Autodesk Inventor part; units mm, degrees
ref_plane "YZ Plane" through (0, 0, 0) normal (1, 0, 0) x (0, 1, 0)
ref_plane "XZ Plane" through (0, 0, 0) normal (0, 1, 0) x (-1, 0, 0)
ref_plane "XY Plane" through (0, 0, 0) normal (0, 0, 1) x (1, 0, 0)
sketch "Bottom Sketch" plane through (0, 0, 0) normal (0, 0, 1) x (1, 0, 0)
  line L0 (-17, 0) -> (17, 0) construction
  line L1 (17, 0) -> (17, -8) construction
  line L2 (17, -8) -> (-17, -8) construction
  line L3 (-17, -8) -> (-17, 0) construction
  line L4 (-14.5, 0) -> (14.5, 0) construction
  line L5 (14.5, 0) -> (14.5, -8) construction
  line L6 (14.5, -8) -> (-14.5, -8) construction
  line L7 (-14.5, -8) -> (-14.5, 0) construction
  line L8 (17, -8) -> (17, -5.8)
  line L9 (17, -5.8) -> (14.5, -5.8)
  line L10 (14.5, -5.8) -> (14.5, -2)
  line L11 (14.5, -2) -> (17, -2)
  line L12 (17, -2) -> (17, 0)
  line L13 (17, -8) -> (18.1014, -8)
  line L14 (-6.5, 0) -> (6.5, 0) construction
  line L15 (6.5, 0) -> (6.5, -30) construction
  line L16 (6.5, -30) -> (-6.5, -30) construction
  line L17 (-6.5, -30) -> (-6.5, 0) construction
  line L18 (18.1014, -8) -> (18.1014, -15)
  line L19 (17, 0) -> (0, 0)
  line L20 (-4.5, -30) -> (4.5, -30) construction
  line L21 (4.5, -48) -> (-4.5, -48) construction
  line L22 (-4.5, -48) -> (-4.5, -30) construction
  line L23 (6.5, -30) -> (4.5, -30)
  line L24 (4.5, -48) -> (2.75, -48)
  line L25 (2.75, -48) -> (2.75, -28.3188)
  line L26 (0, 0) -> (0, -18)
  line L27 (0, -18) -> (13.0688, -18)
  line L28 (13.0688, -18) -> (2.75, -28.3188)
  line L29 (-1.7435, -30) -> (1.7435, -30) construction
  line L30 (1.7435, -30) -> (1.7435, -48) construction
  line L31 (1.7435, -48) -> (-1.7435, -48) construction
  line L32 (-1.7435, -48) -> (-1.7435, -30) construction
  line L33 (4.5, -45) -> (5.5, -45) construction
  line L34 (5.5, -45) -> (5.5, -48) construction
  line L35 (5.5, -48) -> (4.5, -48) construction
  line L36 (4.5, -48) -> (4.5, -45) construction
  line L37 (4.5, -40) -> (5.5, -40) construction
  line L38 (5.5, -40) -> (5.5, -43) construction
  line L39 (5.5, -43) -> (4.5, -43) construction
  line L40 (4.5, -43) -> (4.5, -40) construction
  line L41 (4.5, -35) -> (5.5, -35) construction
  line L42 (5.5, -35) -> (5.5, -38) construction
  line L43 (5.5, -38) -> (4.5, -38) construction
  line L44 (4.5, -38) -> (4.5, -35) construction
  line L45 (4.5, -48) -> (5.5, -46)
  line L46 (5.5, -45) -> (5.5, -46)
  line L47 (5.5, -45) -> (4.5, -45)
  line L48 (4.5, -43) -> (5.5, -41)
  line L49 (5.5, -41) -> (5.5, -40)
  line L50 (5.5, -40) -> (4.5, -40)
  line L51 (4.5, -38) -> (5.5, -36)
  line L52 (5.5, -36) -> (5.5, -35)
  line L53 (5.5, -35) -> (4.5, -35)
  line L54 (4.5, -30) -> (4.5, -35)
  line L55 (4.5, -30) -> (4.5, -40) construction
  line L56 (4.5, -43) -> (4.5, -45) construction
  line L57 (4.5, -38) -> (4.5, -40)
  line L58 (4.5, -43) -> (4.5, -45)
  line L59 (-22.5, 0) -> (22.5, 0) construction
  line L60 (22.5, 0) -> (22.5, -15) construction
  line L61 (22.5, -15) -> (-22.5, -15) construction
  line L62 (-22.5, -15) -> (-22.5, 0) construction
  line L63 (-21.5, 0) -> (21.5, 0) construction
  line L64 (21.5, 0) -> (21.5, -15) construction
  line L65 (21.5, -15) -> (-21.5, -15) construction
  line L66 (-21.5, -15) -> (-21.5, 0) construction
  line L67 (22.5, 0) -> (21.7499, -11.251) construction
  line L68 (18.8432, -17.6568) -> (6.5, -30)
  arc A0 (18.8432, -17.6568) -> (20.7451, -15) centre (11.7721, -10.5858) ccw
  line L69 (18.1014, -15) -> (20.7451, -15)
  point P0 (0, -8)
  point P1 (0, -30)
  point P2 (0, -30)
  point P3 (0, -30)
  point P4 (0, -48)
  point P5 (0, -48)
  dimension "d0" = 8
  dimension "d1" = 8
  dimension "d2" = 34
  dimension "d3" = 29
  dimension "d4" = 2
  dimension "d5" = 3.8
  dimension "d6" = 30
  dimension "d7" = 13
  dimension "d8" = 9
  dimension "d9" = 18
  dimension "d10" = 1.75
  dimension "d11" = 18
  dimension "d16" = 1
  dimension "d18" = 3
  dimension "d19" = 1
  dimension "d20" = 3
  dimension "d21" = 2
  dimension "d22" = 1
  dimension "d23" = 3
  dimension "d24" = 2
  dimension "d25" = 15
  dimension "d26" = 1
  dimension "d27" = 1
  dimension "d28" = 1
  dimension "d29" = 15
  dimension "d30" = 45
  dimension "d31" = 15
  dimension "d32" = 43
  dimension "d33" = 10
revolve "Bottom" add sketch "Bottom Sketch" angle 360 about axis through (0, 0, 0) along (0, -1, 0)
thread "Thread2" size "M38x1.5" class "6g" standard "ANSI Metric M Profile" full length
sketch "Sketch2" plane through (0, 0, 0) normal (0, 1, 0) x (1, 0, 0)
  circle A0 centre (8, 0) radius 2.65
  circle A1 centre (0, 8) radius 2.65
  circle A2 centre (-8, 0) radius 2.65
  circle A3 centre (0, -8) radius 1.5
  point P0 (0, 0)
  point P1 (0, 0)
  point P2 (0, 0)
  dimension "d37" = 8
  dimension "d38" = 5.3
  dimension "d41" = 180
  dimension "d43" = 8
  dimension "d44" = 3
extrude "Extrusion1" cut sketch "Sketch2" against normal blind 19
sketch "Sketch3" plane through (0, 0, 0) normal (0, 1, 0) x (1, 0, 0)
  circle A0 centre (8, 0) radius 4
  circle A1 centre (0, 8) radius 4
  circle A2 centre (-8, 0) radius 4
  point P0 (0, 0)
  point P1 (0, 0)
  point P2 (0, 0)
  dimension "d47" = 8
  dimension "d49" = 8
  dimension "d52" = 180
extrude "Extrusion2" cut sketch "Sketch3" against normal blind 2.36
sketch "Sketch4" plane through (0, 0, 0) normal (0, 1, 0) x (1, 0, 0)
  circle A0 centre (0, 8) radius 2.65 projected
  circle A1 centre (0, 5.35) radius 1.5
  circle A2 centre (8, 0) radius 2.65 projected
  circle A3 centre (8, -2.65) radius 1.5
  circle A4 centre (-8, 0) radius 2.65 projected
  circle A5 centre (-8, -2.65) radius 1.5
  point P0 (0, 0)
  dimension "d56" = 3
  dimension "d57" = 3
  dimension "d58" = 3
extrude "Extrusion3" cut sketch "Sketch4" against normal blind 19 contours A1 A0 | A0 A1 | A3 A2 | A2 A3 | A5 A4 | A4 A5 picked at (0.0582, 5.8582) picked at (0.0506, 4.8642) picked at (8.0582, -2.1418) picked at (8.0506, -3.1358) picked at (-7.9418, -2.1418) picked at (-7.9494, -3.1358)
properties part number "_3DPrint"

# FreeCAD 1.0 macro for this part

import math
import FreeCAD as App
import Part
import Sketcher

V = App.Vector
Q = App.Units.Quantity

doc = App.newDocument("Part")
params = doc.addObject("Spreadsheet::Sheet", "Params")
for row, (alias, value) in enumerate([
    ("sketch1_radius", "10 mm"),
    ("sketch1_width", "1 mm"),
    ("sketch1_width2", "2 mm"),
    ("sketch1_height", "18 mm"),
    ("sketch1_height2", "3.8 mm"),
    ("revolution_angle", "360 deg"),
    ("sketch2_diameter", "3 mm"),
    ("sketch2_diameter2", "5.3 mm"),
    ("pocket1_length", "19 mm"),
    ("sketch3_diameter", "8 mm"),
    ("pocket2_length", "2.36 mm"),
    ("sketch4_diameter", "3 mm"),
    ("pocket3_length", "19 mm"),
], start=1):
    params.set(f"A{row}", alias)
    params.set(f"B{row}", "=" + value)
    params.setAlias(f"B{row}", alias)

body = doc.addObject("PartDesign::Body", "Body")

sketch1 = doc.addObject("Sketcher::SketchObject", "Sketch")
body.addObject(sketch1)
sketch1.AttachmentSupport = (doc.XY_Plane, [""])
sketch1.MapMode = "FlatFace"
sketch1.addGeometry([
    Part.LineSegment(V(18.1, -8, 0), V(17, -8, 0)),
    Part.LineSegment(V(17, -8, 0), V(17, -5.8, 0)),
    Part.LineSegment(V(17, -5.8, 0), V(14.5, -5.8, 0)),
    Part.LineSegment(V(14.5, -5.8, 0), V(14.5, -2, 0)),
    Part.LineSegment(V(14.5, -2, 0), V(17, -2, 0)),
    Part.LineSegment(V(17, -2, 0), V(17, 0, 0)),
    Part.LineSegment(V(17, 0, 0), V(0, 0, 0)),
    Part.LineSegment(V(0, 0, 0), V(0, -18, 0)),
    Part.LineSegment(V(0, -18, 0), V(13.1, -18, 0)),
    Part.LineSegment(V(13.1, -18, 0), V(2.8, -28.3, 0)),
    Part.LineSegment(V(2.8, -28.3, 0), V(2.8, -48, 0)),
    Part.LineSegment(V(2.8, -48, 0), V(4.5, -48, 0)),
    Part.LineSegment(V(4.5, -48, 0), V(5.5, -46, 0)),
    Part.LineSegment(V(5.5, -46, 0), V(5.5, -45, 0)),
    Part.LineSegment(V(5.5, -45, 0), V(4.5, -45, 0)),
    Part.LineSegment(V(4.5, -45, 0), V(4.5, -43, 0)),
    Part.LineSegment(V(4.5, -43, 0), V(5.5, -41, 0)),
    Part.LineSegment(V(5.5, -41, 0), V(5.5, -40, 0)),
    Part.LineSegment(V(5.5, -40, 0), V(4.5, -40, 0)),
    Part.LineSegment(V(4.5, -40, 0), V(4.5, -38, 0)),
    Part.LineSegment(V(4.5, -38, 0), V(5.5, -36, 0)),
    Part.LineSegment(V(5.5, -36, 0), V(5.5, -35, 0)),
    Part.LineSegment(V(5.5, -35, 0), V(4.5, -35, 0)),
    Part.LineSegment(V(4.5, -35, 0), V(4.5, -30, 0)),
    Part.LineSegment(V(4.5, -30, 0), V(6.5, -30, 0)),
    Part.LineSegment(V(6.5, -30, 0), V(18.8, -17.7, 0)),
    Part.ArcOfCircle(Part.Circle(V(11.8, -10.6, 0), V(0, 0, 1), 10), math.radians(-45), math.radians(-26.19)),
    Part.LineSegment(V(20.7, -15, 0), V(18.1, -15, 0)),
    Part.LineSegment(V(18.1, -15, 0), V(18.1, -8, 0)),
], False)
sketch1.addConstraint([
    Sketcher.Constraint("Coincident", 0, 2, 1, 1),
    Sketcher.Constraint("Coincident", 1, 2, 2, 1),
    Sketcher.Constraint("Coincident", 2, 2, 3, 1),
    Sketcher.Constraint("Coincident", 3, 2, 4, 1),
    Sketcher.Constraint("Coincident", 4, 2, 5, 1),
    Sketcher.Constraint("Coincident", 5, 2, 6, 1),
    Sketcher.Constraint("Coincident", 6, 2, 7, 1),
    Sketcher.Constraint("Coincident", 7, 2, 8, 1),
    Sketcher.Constraint("Coincident", 8, 2, 9, 1),
    Sketcher.Constraint("Coincident", 9, 2, 10, 1),
    Sketcher.Constraint("Coincident", 10, 2, 11, 1),
    Sketcher.Constraint("Coincident", 11, 2, 12, 1),
    Sketcher.Constraint("Coincident", 12, 2, 13, 1),
    Sketcher.Constraint("Coincident", 13, 2, 14, 1),
    Sketcher.Constraint("Coincident", 14, 2, 15, 1),
    Sketcher.Constraint("Coincident", 15, 2, 16, 1),
    Sketcher.Constraint("Coincident", 16, 2, 17, 1),
    Sketcher.Constraint("Coincident", 17, 2, 18, 1),
    Sketcher.Constraint("Coincident", 18, 2, 19, 1),
    Sketcher.Constraint("Coincident", 19, 2, 20, 1),
    Sketcher.Constraint("Coincident", 20, 2, 21, 1),
    Sketcher.Constraint("Coincident", 21, 2, 22, 1),
    Sketcher.Constraint("Coincident", 22, 2, 23, 1),
    Sketcher.Constraint("Coincident", 23, 2, 24, 1),
    Sketcher.Constraint("Coincident", 24, 2, 25, 1),
    Sketcher.Constraint("Tangent", 25, 2, 26, 1),
    Sketcher.Constraint("Coincident", 26, 2, 27, 1),
    Sketcher.Constraint("Coincident", 27, 2, 28, 1),
    Sketcher.Constraint("Coincident", 28, 2, 0, 1),
    Sketcher.Constraint("Horizontal", 0),
    Sketcher.Constraint("Vertical", 1),
    Sketcher.Constraint("Horizontal", 2),
    Sketcher.Constraint("Vertical", 3),
    Sketcher.Constraint("Horizontal", 4),
    Sketcher.Constraint("Vertical", 5),
    Sketcher.Constraint("Horizontal", 6),
    Sketcher.Constraint("Vertical", 7),
    Sketcher.Constraint("Horizontal", 8),
    Sketcher.Constraint("Vertical", 10),
    Sketcher.Constraint("Horizontal", 11),
    Sketcher.Constraint("Vertical", 13),
    Sketcher.Constraint("Horizontal", 14),
    Sketcher.Constraint("Vertical", 15),
    Sketcher.Constraint("Vertical", 17),
    Sketcher.Constraint("Horizontal", 18),
    Sketcher.Constraint("Vertical", 19),
    Sketcher.Constraint("Vertical", 21),
    Sketcher.Constraint("Horizontal", 22),
    Sketcher.Constraint("Vertical", 23),
    Sketcher.Constraint("Horizontal", 24),
    Sketcher.Constraint("Horizontal", 27),
    Sketcher.Constraint("Vertical", 28),
    Sketcher.Constraint("Coincident", 6, 2, -1, 1),
    Sketcher.Constraint("Parallel", 12, 16),
    Sketcher.Constraint("Parallel", 16, 20),
    Sketcher.Constraint("Parallel", 9, 25),
    Sketcher.Constraint("Vertical", 1, 2, 4, 2),
    Sketcher.Constraint("Vertical", 11, 2, 14, 2),
    Sketcher.Constraint("Vertical", 13, 2, 16, 2),
    Sketcher.Constraint("Vertical", 15, 2, 18, 2),
    Sketcher.Constraint("Vertical", 17, 2, 20, 2),
    Sketcher.Constraint("Vertical", 19, 2, 22, 2),
    Sketcher.Constraint("Equal", 24, 5),
    Sketcher.Constraint("Equal", 22, 13),
    Sketcher.Constraint("Equal", 5, 15),
    Sketcher.Constraint("Equal", 13, 17),
    Sketcher.Constraint("Equal", 15, 19),
    Sketcher.Constraint("Equal", 17, 21),
    Sketcher.Constraint("Radius", 26, Q("10 mm")),
    Sketcher.Constraint("DistanceX", 14, 2, 14, 1, Q("1 mm")),
    Sketcher.Constraint("DistanceX", 24, 1, 24, 2, Q("2 mm")),
    Sketcher.Constraint("DistanceY", 7, 2, 7, 1, Q("18 mm")),
    Sketcher.Constraint("Angle", 25, Q("45 deg")),
    Sketcher.Constraint("DistanceY", 3, 1, 3, 2, Q("3.8 mm")),
    Sketcher.Constraint("DistanceY", 0, 2, -1, 1, Q("8 mm")),
    Sketcher.Constraint("DistanceY", 13, 2, -1, 1, Q("45 mm")),
    Sketcher.Constraint("DistanceY", 23, 2, -1, 1, Q("30 mm")),
    Sketcher.Constraint("DistanceY", 26, 2, -1, 1, Q("15 mm")),
    Sketcher.Constraint("DistanceY", 10, 2, 7, 2, Q("30 mm")),
    Sketcher.Constraint("DistanceX", 11, 1, 11, 2, Q("1.75 mm")),
    Sketcher.Constraint("DistanceX", 6, 2, 6, 1, Q("17 mm")),
    Sketcher.Constraint("DistanceX", 2, 2, 2, 1, Q("2.5 mm")),
    Sketcher.Constraint("DistanceX", -1, 1, 11, 2, Q("4.5 mm")),
    Sketcher.Constraint("Distance", 9, Q("14.593 mm")),
    Sketcher.Constraint("Distance", 25, Q("17.456 mm")),
    Sketcher.Constraint("DistanceX", 0, 2, 0, 1, Q("1.1014 mm")),
])
sketch1.setExpression("Constraints[68]", "Params.sketch1_radius")
sketch1.setExpression("Constraints[69]", "Params.sketch1_width")
sketch1.setExpression("Constraints[70]", "Params.sketch1_width2")
sketch1.setExpression("Constraints[71]", "Params.sketch1_height")
sketch1.setExpression("Constraints[73]", "Params.sketch1_height2")
revolution = doc.addObject("PartDesign::Revolution", "Revolution")
body.addObject(revolution)
revolution.Profile = sketch1
revolution.ReferenceAxis = (sketch1, ["V_Axis"])
revolution.setExpression("Angle", "Params.revolution_angle")

sketch2 = doc.addObject("Sketcher::SketchObject", "Sketch001")
body.addObject(sketch2)
sketch2.AttachmentSupport = (doc.XZ_Plane, [""])
sketch2.MapMode = "FlatFace"
sketch2.addGeometry([
    Part.Circle(V(8, 0, 0), V(0, 0, 1), 2.6),
    Part.Circle(V(0, -8, 0), V(0, 0, 1), 2.6),
    Part.Circle(V(-8, 0, 0), V(0, 0, 1), 2.6),
    Part.Circle(V(0, 8, 0), V(0, 0, 1), 1.5),
], False)
sketch2.addConstraint([
    Sketcher.Constraint("Equal", 0, 1),
    Sketcher.Constraint("Equal", 1, 2),
    Sketcher.Constraint("Symmetric", 0, 3, 2, 3, -1, 1),
    Sketcher.Constraint("Symmetric", 1, 3, 3, 3, -1, 1),
    Sketcher.Constraint("PointOnObject", 0, 3, -1),
    Sketcher.Constraint("PointOnObject", 1, 3, -2),
    Sketcher.Constraint("Diameter", 3, Q("3 mm")),
    Sketcher.Constraint("Diameter", 0, Q("5.3 mm")),
    Sketcher.Constraint("DistanceX", -1, 1, 0, 3, Q("8 mm")),
    Sketcher.Constraint("DistanceY", 1, 3, -1, 1, Q("8 mm")),
])
sketch2.setExpression("Constraints[6]", "Params.sketch2_diameter")
sketch2.setExpression("Constraints[7]", "Params.sketch2_diameter2")
pocket1 = doc.addObject("PartDesign::Pocket", "Pocket")
body.addObject(pocket1)
pocket1.Profile = sketch2
pocket1.setExpression("Length", "Params.pocket1_length")
pocket1.Reversed = True

sketch3 = doc.addObject("Sketcher::SketchObject", "Sketch002")
body.addObject(sketch3)
sketch3.AttachmentSupport = (doc.XZ_Plane, [""])
sketch3.MapMode = "FlatFace"
sketch3.addGeometry([
    Part.Circle(V(8, 0, 0), V(0, 0, 1), 4),
    Part.Circle(V(0, -8, 0), V(0, 0, 1), 4),
    Part.Circle(V(-8, 0, 0), V(0, 0, 1), 4),
], False)
sketch3.addConstraint([
    Sketcher.Constraint("Equal", 0, 1),
    Sketcher.Constraint("Equal", 1, 2),
    Sketcher.Constraint("Symmetric", 0, 3, 2, 3, -1, 1),
    Sketcher.Constraint("PointOnObject", 0, 3, -1),
    Sketcher.Constraint("PointOnObject", 1, 3, -2),
    Sketcher.Constraint("Diameter", 0, Q("8 mm")),
    Sketcher.Constraint("DistanceX", -1, 1, 0, 3, Q("8 mm")),
    Sketcher.Constraint("DistanceY", 1, 3, -1, 1, Q("8 mm")),
])
sketch3.setExpression("Constraints[5]", "Params.sketch3_diameter")
pocket2 = doc.addObject("PartDesign::Pocket", "Pocket001")
body.addObject(pocket2)
pocket2.Profile = sketch3
pocket2.setExpression("Length", "Params.pocket2_length")
pocket2.Reversed = True

sketch4 = doc.addObject("Sketcher::SketchObject", "Sketch003")
body.addObject(sketch4)
sketch4.AttachmentSupport = (doc.XZ_Plane, [""])
sketch4.MapMode = "FlatFace"
sketch4.addGeometry([
    Part.Circle(V(0, -5.3, 0), V(0, 0, 1), 1.5),
    Part.Circle(V(8, 2.6, 0), V(0, 0, 1), 1.5),
    Part.Circle(V(-8, 2.6, 0), V(0, 0, 1), 1.5),
], False)
sketch4.addConstraint([
    Sketcher.Constraint("Equal", 0, 1),
    Sketcher.Constraint("Equal", 1, 2),
    Sketcher.Constraint("Symmetric", 1, 3, 2, 3, -2),
    Sketcher.Constraint("PointOnObject", 0, 3, -2),
    Sketcher.Constraint("Diameter", 0, Q("3 mm")),
    Sketcher.Constraint("DistanceX", -1, 1, 1, 3, Q("8 mm")),
    Sketcher.Constraint("DistanceY", 0, 3, 1, 3, Q("8 mm")),
    Sketcher.Constraint("DistanceY", 0, 3, -1, 1, Q("5.35 mm")),
])
sketch4.setExpression("Constraints[4]", "Params.sketch4_diameter")
pocket3 = doc.addObject("PartDesign::Pocket", "Pocket002")
body.addObject(pocket3)
pocket3.Profile = sketch4
pocket3.setExpression("Length", "Params.pocket3_length")
pocket3.Reversed = True

doc.recompute()
